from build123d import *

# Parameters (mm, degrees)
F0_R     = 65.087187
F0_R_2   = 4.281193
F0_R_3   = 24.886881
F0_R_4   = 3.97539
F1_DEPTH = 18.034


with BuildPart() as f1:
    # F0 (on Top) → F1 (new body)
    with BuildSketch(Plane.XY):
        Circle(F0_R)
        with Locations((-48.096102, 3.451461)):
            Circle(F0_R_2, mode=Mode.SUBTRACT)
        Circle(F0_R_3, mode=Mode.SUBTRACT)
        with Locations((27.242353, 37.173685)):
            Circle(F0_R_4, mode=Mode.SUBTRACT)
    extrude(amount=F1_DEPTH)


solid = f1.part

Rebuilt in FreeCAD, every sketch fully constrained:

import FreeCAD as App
import Part
import Sketcher
Q = App.Units.Quantity

doc = App.newDocument("Part")
body = doc.addObject("PartDesign::Body", "Body")

# Sketch on XY plane
sketch1 = doc.addObject("Sketcher::SketchObject", "Sketch")
body.addObject(sketch1)
sketch1.AttachmentSupport = (doc.XY_Plane, [""])
sketch1.MapMode = "FlatFace"
sketch1.addGeometry(Part.Circle(App.Vector(0, 0, 0), App.Vector(0, 0, 1), 65.1), False)
sketch1.addGeometry(Part.Circle(App.Vector(-48.1, 3.5, 0), App.Vector(0, 0, 1), 4.3), False)
sketch1.addGeometry(Part.Circle(App.Vector(0, 0, 0), App.Vector(0, 0, 1), 24.9), False)
sketch1.addGeometry(Part.Circle(App.Vector(27.2, 37.2, 0), App.Vector(0, 0, 1), 4), False)
sketch1.addConstraint(Sketcher.Constraint("Coincident", 0, 3, -1, 1))
sketch1.addConstraint(Sketcher.Constraint("Coincident", 2, 3, -1, 1))
sketch1.addConstraint(Sketcher.Constraint("Diameter", 2, Q("49.773762 mm")))
sketch1.addConstraint(Sketcher.Constraint("Diameter", 3, Q("7.95078 mm")))
sketch1.addConstraint(Sketcher.Constraint("Diameter", 0, Q("130.174374 mm")))
sketch1.addConstraint(Sketcher.Constraint("Diameter", 1, Q("8.562386 mm")))
sketch1.addConstraint(Sketcher.Constraint("DistanceY", -1, 1, 1, 3, Q("3.451461 mm")))
sketch1.addConstraint(Sketcher.Constraint("DistanceX", 1, 3, -1, 1, Q("48.096102 mm")))
sketch1.addConstraint(Sketcher.Constraint("DistanceX", -1, 1, 3, 3, Q("27.242353 mm")))
sketch1.addConstraint(Sketcher.Constraint("DistanceY", -1, 1, 3, 3, Q("37.173685 mm")))
pad1 = doc.addObject("PartDesign::Pad", "Pad")
body.addObject(pad1)
pad1.Profile = sketch1
pad1.Length = Q("0.71 in")

doc.recompute()
